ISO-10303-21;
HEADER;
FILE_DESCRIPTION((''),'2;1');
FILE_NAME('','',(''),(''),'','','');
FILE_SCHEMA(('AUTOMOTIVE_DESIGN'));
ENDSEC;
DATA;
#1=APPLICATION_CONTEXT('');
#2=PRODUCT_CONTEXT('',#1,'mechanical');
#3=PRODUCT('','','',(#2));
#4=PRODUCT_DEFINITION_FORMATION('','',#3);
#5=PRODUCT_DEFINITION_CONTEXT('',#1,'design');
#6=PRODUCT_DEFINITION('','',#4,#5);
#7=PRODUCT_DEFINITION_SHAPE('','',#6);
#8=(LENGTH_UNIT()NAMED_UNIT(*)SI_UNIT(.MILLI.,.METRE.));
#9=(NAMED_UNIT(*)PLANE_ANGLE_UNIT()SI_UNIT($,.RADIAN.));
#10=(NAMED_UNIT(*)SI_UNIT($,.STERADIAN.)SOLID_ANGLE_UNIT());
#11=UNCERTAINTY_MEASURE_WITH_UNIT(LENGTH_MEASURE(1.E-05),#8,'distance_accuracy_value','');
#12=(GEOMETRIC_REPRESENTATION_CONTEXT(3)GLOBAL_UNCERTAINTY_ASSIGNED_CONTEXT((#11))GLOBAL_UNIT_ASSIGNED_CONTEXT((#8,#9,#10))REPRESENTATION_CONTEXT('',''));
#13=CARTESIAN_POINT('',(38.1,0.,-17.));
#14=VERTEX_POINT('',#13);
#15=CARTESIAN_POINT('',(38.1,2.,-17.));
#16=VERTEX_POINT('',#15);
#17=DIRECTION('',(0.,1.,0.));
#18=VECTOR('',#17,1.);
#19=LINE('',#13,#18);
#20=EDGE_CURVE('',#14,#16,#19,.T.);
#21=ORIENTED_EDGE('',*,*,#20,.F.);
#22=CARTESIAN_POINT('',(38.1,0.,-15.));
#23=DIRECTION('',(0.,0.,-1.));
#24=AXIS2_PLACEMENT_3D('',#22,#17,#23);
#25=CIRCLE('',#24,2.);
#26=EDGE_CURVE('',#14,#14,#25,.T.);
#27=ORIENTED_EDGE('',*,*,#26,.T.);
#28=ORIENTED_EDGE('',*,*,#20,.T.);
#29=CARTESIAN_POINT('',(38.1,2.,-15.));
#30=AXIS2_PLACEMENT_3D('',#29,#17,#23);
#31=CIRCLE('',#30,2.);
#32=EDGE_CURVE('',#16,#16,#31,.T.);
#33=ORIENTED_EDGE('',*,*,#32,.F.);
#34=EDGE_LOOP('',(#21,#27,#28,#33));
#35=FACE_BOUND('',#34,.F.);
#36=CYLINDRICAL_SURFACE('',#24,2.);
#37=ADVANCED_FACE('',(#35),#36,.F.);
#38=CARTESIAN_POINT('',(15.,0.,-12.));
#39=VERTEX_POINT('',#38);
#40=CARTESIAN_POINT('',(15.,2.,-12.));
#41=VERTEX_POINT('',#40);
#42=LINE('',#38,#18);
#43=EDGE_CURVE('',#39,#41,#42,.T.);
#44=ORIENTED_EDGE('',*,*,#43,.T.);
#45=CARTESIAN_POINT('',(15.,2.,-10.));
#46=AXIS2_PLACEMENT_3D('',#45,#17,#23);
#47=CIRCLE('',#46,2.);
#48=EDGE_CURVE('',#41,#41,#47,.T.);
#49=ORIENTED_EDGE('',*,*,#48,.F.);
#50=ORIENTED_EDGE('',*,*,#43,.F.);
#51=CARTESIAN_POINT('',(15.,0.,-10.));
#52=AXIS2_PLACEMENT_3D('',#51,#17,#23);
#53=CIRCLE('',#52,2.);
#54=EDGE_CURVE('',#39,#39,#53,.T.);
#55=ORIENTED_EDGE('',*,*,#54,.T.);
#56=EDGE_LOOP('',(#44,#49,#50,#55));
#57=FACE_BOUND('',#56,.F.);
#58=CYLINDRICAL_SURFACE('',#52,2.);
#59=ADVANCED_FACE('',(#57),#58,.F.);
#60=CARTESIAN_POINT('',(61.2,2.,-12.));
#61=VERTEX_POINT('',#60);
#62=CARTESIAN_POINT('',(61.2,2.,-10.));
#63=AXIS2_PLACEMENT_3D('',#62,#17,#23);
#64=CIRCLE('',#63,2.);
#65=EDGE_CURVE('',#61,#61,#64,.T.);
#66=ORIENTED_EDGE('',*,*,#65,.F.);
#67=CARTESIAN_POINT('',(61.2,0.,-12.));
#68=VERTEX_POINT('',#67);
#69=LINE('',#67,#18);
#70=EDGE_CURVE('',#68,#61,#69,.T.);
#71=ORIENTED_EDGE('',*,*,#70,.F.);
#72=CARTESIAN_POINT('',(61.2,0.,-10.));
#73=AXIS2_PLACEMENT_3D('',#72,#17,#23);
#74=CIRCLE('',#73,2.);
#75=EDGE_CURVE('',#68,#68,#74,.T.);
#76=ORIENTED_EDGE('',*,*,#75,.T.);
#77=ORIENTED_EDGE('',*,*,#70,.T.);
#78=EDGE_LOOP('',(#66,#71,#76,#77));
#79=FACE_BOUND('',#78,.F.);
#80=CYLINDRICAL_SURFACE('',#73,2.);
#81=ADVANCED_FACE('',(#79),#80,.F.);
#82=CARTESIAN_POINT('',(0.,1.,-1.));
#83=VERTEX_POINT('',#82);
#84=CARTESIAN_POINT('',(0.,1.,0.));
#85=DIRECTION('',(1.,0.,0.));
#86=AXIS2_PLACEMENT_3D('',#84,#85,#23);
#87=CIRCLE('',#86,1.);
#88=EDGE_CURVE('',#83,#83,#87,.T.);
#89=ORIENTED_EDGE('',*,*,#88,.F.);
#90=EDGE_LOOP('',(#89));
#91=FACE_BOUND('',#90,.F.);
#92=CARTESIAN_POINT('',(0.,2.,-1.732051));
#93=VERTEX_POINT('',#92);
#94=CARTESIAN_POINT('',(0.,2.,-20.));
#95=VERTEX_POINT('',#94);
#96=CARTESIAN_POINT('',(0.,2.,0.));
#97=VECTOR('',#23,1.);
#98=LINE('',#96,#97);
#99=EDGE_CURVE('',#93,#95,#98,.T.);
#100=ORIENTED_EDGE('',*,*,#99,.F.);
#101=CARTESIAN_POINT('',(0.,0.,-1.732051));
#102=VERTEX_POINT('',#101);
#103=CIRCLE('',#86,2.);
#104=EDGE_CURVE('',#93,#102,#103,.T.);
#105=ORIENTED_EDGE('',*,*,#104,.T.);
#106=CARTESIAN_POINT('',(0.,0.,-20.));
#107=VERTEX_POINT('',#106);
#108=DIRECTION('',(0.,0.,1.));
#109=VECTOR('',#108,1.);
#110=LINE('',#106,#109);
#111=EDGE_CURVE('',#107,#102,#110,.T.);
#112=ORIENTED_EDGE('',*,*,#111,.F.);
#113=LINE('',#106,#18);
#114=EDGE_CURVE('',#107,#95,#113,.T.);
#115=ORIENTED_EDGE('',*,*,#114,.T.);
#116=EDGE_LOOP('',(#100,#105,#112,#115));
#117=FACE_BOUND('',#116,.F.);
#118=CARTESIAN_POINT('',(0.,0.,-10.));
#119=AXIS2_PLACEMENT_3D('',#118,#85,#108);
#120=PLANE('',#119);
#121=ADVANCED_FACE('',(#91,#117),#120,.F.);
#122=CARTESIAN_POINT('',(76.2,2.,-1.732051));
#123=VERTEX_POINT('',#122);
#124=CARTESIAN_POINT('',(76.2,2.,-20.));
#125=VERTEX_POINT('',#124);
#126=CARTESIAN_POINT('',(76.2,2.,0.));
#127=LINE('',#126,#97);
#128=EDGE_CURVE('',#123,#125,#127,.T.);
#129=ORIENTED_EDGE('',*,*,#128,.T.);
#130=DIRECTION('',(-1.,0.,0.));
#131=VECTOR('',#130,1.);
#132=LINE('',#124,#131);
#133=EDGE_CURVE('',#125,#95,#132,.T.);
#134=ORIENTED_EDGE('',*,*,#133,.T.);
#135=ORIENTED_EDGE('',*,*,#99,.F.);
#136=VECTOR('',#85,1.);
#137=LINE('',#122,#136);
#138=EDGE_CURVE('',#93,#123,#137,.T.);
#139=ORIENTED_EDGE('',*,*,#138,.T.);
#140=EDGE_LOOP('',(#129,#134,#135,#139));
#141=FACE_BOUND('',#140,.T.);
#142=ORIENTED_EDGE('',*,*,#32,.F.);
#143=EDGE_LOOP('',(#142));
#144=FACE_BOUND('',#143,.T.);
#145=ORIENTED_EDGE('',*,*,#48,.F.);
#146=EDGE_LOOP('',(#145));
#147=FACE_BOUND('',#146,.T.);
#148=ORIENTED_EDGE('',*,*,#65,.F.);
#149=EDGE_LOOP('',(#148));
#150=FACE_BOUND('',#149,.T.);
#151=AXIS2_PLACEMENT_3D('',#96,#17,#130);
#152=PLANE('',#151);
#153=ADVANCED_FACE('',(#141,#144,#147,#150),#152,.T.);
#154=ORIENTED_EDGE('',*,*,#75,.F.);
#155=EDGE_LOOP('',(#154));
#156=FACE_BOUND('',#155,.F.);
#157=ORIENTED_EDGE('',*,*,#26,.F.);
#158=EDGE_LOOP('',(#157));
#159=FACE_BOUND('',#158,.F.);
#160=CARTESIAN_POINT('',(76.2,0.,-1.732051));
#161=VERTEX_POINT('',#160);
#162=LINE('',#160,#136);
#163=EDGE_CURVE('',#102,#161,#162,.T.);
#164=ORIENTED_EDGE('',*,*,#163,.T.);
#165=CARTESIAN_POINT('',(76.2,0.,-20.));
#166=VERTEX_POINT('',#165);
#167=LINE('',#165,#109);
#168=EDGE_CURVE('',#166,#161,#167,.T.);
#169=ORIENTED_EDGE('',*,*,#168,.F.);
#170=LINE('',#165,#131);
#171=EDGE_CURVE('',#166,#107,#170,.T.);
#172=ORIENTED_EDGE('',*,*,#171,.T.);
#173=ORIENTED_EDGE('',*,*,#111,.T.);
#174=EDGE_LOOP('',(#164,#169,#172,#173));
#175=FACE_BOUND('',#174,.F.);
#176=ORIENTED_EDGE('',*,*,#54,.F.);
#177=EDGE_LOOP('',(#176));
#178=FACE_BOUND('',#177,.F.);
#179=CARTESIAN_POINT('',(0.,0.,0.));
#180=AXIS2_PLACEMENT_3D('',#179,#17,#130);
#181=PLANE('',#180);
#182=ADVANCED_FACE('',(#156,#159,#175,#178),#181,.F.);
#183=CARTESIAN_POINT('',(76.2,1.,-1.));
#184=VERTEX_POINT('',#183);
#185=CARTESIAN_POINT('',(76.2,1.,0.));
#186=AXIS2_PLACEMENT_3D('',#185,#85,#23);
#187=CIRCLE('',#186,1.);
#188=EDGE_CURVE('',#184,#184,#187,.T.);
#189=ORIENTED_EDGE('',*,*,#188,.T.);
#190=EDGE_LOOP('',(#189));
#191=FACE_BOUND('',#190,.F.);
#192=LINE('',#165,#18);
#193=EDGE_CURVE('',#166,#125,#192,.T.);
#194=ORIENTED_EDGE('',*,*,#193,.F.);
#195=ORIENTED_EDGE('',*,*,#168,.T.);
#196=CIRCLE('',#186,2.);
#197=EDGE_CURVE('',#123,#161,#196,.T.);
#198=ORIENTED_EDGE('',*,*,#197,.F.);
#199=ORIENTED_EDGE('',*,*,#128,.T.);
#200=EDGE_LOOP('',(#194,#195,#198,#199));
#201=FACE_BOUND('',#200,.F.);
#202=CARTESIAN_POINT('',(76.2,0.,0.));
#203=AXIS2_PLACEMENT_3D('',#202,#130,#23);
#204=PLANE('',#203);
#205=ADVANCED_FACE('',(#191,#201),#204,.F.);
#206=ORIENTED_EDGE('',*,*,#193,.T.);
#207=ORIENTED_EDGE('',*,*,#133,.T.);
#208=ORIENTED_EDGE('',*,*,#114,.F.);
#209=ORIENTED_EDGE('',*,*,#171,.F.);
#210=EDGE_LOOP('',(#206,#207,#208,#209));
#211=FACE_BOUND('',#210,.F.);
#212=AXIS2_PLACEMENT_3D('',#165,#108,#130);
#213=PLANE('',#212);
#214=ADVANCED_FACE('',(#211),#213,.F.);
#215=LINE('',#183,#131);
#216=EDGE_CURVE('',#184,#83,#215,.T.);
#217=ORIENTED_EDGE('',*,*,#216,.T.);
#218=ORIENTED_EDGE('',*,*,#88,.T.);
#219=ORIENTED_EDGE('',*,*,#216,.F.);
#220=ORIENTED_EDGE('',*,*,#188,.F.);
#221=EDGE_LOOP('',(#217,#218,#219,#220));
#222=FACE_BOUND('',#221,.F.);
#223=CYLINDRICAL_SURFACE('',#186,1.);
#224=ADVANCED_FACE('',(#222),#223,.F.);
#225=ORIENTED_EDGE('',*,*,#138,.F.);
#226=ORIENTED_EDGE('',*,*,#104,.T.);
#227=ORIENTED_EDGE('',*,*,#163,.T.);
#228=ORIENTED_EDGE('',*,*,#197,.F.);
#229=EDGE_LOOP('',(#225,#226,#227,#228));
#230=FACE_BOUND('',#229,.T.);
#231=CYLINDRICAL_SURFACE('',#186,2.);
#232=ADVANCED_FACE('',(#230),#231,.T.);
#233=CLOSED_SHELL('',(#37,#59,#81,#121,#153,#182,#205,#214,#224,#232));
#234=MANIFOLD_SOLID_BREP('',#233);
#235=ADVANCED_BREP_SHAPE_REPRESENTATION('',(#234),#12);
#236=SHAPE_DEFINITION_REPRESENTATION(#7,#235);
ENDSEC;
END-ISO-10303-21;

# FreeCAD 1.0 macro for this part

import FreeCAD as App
import Part
import Sketcher
from FreeCAD import Vector


def add_polygon(sketch, points):
    """Adds a closed chain of lines whose ends are joined by coincident constraints."""
    first, n = sketch.GeometryCount, len(points)
    for a, b in zip(points, points[1:] + points[:1]):
        sketch.addGeometry(Part.LineSegment(App.Vector(*a, 0), App.Vector(*b, 0)), False)
    for i in range(n):
        sketch.addConstraint(Sketcher.Constraint("Coincident", first + i, 2, first + (i + 1) % n, 1))

doc = App.newDocument("Part")
body = doc.addObject("PartDesign::Body", "Body")

sketch1 = doc.addObject("Sketcher::SketchObject", "Sketch")
body.addObject(sketch1)
sketch1.AttachmentSupport = (doc.XZ_Plane, [""])
sketch1.MapMode = "FlatFace"
add_polygon(sketch1, [(0, -20), (0, 0), (76, 0), (76, -20)])
sketch1.addConstraint(Sketcher.Constraint("Vertical", 0))
sketch1.addConstraint(Sketcher.Constraint("Horizontal", 1))
sketch1.addConstraint(Sketcher.Constraint("Vertical", 2))
sketch1.addConstraint(Sketcher.Constraint("Horizontal", 3))
sketch1.addConstraint(Sketcher.Constraint("Coincident", 0, 2, -1, 1))
sketch1.addConstraint(Sketcher.Constraint("DistanceY", 0, 1, 0, 2, 20.0))
sketch1.addConstraint(Sketcher.Constraint("DistanceX", 1, 1, 1, 2, 76.2))
pad1 = doc.addObject("PartDesign::Pad", "Pad")
body.addObject(pad1)
pad1.Profile = sketch1
pad1.Length = 2
pad1.Reversed = True

sketch2 = doc.addObject("Sketcher::SketchObject", "Sketch001")
body.addObject(sketch2)
sketch2.AttachmentSupport = (doc.XZ_Plane, [""])
sketch2.MapMode = "FlatFace"
sketch2.addGeometry(Part.Circle(Vector(15, -10, 0), Vector(0, 0, 1), 2), False)
sketch2.addGeometry(Part.Circle(Vector(38.1, -15, 0), Vector(0, 0, 1), 2), False)
sketch2.addGeometry(Part.Circle(Vector(61.2, -10, 0), Vector(0, 0, 1), 2), False)
sketch2.addConstraint(Sketcher.Constraint("Equal", 0, 1))
sketch2.addConstraint(Sketcher.Constraint("Equal", 1, 2))
sketch2.addConstraint(Sketcher.Constraint("Horizontal", 0, 3, 2, 3))
sketch2.addConstraint(Sketcher.Constraint("Diameter", 0, 4.0))
sketch2.addConstraint(Sketcher.Constraint("DistanceX", -1, 1, 0, 3, 15.0))
sketch2.addConstraint(Sketcher.Constraint("DistanceY", 0, 3, -1, 1, 10.0))
sketch2.addConstraint(Sketcher.Constraint("DistanceY", 1, 3, -1, 1, 15.0))
sketch2.addConstraint(Sketcher.Constraint("DistanceX", -1, 1, 1, 3, 38.1))
sketch2.addConstraint(Sketcher.Constraint("DistanceX", -1, 1, 2, 3, 61.2))
doc.recompute()
hole = doc.addObject("PartDesign::Hole", "Hole")
body.addObject(hole)
hole.Profile = sketch2
hole.ThreadType = "None"
hole.Diameter = 4
hole.DepthType = "Dimension"
hole.Depth = 10
hole.DrillPoint = "Angled"
hole.DrillPointAngle = 118

sketch3 = doc.addObject("Sketcher::SketchObject", "Sketch002")
body.addObject(sketch3)
sketch3.AttachmentSupport = (doc.YZ_Plane, [""])
sketch3.MapMode = "FlatFace"
sketch3.AttachmentOffset = App.Placement(Vector(0, 0, 76.2), App.Rotation())
sketch3.addGeometry(Part.Circle(Vector(1, 0, 0), Vector(0, 0, 1), 2), False)
sketch3.addGeometry(Part.Circle(Vector(1, 0, 0), Vector(0, 0, 1), 1), False)
sketch3.addConstraint(Sketcher.Constraint("Coincident", 1, 3, 0, 3))
sketch3.addConstraint(Sketcher.Constraint("PointOnObject", 0, 3, -1))
sketch3.addConstraint(Sketcher.Constraint("Diameter", 0, 4.0))
sketch3.addConstraint(Sketcher.Constraint("Diameter", 1, 2.0))
sketch3.addConstraint(Sketcher.Constraint("DistanceX", -1, 1, 0, 3, 1.0))
pad2 = doc.addObject("PartDesign::Pad", "Pad001")
body.addObject(pad2)
pad2.Profile = sketch3
pad2.Length = 76.2
pad2.Reversed = True

sketch4 = doc.addObject("Sketcher::SketchObject", "Sketch003")
body.addObject(sketch4)
sketch4.AttachmentSupport = (doc.YZ_Plane, [""])
sketch4.MapMode = "FlatFace"
sketch4.AttachmentOffset = App.Placement(Vector(0, 0, 76.2), App.Rotation())
sketch4.addGeometry(Part.Circle(Vector(1, 0, 0), Vector(0, 0, 1), 1), False)
sketch4.addConstraint(Sketcher.Constraint("PointOnObject", 0, 3, -1))
sketch4.addConstraint(Sketcher.Constraint("Diameter", 0, 2.0))
sketch4.addConstraint(Sketcher.Constraint("DistanceX", -1, 1, 0, 3, 1.0))
pocket1 = doc.addObject("PartDesign::Pocket", "Pocket")
body.addObject(pocket1)
pocket1.Profile = sketch4
pocket1.Length = 76.2

doc.recompute()
